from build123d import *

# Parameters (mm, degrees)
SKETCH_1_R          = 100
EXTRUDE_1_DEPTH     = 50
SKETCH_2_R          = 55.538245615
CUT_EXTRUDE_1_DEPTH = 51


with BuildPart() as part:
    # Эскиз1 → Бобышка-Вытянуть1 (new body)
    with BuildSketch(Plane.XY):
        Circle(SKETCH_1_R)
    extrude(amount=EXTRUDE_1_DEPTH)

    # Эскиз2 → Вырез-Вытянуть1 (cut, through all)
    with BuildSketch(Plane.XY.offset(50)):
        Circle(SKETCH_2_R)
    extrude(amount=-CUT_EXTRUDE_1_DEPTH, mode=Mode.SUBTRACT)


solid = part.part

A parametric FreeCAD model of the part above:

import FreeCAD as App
import Part
import Sketcher

doc = App.newDocument("Part")
body = doc.addObject("PartDesign::Body", "Body")

# Sketch on XY plane
sketch1 = body.newObject("Sketcher::SketchObject", "Sketch")
sketch1.AttachmentSupport = (doc.getObject("XY_Plane"), [""])
sketch1.MapMode = "FlatFace"
sketch1.addGeometry(Part.Circle(App.Vector(0, 0, 0), App.Vector(0, 0, 1), 100), False)
sketch1.addConstraint([
    Sketcher.Constraint("Coincident", 0, 3, -1, 1),
    Sketcher.Constraint("Diameter", 0, 200.0),
])
pad1 = body.newObject("PartDesign::Pad", "Pad")
pad1.Profile = sketch1
pad1.Length = 50

# Sketch on XY plane
sketch2 = body.newObject("Sketcher::SketchObject", "Sketch001")
sketch2.AttachmentSupport = (doc.getObject("XY_Plane"), [""])
sketch2.MapMode = "FlatFace"
sketch2.AttachmentOffset = App.Placement(App.Vector(0, 0, 50), App.Rotation())
sketch2.addGeometry(Part.Circle(App.Vector(0, 0, 0), App.Vector(0, 0, 1), 56), False)
sketch2.addConstraint([
    Sketcher.Constraint("Coincident", 0, 3, -1, 1),
    Sketcher.Constraint("Diameter", 0, 111.076491),
])
pocket1 = body.newObject("PartDesign::Pocket", "Pocket")
pocket1.Profile = sketch2
pocket1.Type = "ThroughAll"

doc.recompute()
